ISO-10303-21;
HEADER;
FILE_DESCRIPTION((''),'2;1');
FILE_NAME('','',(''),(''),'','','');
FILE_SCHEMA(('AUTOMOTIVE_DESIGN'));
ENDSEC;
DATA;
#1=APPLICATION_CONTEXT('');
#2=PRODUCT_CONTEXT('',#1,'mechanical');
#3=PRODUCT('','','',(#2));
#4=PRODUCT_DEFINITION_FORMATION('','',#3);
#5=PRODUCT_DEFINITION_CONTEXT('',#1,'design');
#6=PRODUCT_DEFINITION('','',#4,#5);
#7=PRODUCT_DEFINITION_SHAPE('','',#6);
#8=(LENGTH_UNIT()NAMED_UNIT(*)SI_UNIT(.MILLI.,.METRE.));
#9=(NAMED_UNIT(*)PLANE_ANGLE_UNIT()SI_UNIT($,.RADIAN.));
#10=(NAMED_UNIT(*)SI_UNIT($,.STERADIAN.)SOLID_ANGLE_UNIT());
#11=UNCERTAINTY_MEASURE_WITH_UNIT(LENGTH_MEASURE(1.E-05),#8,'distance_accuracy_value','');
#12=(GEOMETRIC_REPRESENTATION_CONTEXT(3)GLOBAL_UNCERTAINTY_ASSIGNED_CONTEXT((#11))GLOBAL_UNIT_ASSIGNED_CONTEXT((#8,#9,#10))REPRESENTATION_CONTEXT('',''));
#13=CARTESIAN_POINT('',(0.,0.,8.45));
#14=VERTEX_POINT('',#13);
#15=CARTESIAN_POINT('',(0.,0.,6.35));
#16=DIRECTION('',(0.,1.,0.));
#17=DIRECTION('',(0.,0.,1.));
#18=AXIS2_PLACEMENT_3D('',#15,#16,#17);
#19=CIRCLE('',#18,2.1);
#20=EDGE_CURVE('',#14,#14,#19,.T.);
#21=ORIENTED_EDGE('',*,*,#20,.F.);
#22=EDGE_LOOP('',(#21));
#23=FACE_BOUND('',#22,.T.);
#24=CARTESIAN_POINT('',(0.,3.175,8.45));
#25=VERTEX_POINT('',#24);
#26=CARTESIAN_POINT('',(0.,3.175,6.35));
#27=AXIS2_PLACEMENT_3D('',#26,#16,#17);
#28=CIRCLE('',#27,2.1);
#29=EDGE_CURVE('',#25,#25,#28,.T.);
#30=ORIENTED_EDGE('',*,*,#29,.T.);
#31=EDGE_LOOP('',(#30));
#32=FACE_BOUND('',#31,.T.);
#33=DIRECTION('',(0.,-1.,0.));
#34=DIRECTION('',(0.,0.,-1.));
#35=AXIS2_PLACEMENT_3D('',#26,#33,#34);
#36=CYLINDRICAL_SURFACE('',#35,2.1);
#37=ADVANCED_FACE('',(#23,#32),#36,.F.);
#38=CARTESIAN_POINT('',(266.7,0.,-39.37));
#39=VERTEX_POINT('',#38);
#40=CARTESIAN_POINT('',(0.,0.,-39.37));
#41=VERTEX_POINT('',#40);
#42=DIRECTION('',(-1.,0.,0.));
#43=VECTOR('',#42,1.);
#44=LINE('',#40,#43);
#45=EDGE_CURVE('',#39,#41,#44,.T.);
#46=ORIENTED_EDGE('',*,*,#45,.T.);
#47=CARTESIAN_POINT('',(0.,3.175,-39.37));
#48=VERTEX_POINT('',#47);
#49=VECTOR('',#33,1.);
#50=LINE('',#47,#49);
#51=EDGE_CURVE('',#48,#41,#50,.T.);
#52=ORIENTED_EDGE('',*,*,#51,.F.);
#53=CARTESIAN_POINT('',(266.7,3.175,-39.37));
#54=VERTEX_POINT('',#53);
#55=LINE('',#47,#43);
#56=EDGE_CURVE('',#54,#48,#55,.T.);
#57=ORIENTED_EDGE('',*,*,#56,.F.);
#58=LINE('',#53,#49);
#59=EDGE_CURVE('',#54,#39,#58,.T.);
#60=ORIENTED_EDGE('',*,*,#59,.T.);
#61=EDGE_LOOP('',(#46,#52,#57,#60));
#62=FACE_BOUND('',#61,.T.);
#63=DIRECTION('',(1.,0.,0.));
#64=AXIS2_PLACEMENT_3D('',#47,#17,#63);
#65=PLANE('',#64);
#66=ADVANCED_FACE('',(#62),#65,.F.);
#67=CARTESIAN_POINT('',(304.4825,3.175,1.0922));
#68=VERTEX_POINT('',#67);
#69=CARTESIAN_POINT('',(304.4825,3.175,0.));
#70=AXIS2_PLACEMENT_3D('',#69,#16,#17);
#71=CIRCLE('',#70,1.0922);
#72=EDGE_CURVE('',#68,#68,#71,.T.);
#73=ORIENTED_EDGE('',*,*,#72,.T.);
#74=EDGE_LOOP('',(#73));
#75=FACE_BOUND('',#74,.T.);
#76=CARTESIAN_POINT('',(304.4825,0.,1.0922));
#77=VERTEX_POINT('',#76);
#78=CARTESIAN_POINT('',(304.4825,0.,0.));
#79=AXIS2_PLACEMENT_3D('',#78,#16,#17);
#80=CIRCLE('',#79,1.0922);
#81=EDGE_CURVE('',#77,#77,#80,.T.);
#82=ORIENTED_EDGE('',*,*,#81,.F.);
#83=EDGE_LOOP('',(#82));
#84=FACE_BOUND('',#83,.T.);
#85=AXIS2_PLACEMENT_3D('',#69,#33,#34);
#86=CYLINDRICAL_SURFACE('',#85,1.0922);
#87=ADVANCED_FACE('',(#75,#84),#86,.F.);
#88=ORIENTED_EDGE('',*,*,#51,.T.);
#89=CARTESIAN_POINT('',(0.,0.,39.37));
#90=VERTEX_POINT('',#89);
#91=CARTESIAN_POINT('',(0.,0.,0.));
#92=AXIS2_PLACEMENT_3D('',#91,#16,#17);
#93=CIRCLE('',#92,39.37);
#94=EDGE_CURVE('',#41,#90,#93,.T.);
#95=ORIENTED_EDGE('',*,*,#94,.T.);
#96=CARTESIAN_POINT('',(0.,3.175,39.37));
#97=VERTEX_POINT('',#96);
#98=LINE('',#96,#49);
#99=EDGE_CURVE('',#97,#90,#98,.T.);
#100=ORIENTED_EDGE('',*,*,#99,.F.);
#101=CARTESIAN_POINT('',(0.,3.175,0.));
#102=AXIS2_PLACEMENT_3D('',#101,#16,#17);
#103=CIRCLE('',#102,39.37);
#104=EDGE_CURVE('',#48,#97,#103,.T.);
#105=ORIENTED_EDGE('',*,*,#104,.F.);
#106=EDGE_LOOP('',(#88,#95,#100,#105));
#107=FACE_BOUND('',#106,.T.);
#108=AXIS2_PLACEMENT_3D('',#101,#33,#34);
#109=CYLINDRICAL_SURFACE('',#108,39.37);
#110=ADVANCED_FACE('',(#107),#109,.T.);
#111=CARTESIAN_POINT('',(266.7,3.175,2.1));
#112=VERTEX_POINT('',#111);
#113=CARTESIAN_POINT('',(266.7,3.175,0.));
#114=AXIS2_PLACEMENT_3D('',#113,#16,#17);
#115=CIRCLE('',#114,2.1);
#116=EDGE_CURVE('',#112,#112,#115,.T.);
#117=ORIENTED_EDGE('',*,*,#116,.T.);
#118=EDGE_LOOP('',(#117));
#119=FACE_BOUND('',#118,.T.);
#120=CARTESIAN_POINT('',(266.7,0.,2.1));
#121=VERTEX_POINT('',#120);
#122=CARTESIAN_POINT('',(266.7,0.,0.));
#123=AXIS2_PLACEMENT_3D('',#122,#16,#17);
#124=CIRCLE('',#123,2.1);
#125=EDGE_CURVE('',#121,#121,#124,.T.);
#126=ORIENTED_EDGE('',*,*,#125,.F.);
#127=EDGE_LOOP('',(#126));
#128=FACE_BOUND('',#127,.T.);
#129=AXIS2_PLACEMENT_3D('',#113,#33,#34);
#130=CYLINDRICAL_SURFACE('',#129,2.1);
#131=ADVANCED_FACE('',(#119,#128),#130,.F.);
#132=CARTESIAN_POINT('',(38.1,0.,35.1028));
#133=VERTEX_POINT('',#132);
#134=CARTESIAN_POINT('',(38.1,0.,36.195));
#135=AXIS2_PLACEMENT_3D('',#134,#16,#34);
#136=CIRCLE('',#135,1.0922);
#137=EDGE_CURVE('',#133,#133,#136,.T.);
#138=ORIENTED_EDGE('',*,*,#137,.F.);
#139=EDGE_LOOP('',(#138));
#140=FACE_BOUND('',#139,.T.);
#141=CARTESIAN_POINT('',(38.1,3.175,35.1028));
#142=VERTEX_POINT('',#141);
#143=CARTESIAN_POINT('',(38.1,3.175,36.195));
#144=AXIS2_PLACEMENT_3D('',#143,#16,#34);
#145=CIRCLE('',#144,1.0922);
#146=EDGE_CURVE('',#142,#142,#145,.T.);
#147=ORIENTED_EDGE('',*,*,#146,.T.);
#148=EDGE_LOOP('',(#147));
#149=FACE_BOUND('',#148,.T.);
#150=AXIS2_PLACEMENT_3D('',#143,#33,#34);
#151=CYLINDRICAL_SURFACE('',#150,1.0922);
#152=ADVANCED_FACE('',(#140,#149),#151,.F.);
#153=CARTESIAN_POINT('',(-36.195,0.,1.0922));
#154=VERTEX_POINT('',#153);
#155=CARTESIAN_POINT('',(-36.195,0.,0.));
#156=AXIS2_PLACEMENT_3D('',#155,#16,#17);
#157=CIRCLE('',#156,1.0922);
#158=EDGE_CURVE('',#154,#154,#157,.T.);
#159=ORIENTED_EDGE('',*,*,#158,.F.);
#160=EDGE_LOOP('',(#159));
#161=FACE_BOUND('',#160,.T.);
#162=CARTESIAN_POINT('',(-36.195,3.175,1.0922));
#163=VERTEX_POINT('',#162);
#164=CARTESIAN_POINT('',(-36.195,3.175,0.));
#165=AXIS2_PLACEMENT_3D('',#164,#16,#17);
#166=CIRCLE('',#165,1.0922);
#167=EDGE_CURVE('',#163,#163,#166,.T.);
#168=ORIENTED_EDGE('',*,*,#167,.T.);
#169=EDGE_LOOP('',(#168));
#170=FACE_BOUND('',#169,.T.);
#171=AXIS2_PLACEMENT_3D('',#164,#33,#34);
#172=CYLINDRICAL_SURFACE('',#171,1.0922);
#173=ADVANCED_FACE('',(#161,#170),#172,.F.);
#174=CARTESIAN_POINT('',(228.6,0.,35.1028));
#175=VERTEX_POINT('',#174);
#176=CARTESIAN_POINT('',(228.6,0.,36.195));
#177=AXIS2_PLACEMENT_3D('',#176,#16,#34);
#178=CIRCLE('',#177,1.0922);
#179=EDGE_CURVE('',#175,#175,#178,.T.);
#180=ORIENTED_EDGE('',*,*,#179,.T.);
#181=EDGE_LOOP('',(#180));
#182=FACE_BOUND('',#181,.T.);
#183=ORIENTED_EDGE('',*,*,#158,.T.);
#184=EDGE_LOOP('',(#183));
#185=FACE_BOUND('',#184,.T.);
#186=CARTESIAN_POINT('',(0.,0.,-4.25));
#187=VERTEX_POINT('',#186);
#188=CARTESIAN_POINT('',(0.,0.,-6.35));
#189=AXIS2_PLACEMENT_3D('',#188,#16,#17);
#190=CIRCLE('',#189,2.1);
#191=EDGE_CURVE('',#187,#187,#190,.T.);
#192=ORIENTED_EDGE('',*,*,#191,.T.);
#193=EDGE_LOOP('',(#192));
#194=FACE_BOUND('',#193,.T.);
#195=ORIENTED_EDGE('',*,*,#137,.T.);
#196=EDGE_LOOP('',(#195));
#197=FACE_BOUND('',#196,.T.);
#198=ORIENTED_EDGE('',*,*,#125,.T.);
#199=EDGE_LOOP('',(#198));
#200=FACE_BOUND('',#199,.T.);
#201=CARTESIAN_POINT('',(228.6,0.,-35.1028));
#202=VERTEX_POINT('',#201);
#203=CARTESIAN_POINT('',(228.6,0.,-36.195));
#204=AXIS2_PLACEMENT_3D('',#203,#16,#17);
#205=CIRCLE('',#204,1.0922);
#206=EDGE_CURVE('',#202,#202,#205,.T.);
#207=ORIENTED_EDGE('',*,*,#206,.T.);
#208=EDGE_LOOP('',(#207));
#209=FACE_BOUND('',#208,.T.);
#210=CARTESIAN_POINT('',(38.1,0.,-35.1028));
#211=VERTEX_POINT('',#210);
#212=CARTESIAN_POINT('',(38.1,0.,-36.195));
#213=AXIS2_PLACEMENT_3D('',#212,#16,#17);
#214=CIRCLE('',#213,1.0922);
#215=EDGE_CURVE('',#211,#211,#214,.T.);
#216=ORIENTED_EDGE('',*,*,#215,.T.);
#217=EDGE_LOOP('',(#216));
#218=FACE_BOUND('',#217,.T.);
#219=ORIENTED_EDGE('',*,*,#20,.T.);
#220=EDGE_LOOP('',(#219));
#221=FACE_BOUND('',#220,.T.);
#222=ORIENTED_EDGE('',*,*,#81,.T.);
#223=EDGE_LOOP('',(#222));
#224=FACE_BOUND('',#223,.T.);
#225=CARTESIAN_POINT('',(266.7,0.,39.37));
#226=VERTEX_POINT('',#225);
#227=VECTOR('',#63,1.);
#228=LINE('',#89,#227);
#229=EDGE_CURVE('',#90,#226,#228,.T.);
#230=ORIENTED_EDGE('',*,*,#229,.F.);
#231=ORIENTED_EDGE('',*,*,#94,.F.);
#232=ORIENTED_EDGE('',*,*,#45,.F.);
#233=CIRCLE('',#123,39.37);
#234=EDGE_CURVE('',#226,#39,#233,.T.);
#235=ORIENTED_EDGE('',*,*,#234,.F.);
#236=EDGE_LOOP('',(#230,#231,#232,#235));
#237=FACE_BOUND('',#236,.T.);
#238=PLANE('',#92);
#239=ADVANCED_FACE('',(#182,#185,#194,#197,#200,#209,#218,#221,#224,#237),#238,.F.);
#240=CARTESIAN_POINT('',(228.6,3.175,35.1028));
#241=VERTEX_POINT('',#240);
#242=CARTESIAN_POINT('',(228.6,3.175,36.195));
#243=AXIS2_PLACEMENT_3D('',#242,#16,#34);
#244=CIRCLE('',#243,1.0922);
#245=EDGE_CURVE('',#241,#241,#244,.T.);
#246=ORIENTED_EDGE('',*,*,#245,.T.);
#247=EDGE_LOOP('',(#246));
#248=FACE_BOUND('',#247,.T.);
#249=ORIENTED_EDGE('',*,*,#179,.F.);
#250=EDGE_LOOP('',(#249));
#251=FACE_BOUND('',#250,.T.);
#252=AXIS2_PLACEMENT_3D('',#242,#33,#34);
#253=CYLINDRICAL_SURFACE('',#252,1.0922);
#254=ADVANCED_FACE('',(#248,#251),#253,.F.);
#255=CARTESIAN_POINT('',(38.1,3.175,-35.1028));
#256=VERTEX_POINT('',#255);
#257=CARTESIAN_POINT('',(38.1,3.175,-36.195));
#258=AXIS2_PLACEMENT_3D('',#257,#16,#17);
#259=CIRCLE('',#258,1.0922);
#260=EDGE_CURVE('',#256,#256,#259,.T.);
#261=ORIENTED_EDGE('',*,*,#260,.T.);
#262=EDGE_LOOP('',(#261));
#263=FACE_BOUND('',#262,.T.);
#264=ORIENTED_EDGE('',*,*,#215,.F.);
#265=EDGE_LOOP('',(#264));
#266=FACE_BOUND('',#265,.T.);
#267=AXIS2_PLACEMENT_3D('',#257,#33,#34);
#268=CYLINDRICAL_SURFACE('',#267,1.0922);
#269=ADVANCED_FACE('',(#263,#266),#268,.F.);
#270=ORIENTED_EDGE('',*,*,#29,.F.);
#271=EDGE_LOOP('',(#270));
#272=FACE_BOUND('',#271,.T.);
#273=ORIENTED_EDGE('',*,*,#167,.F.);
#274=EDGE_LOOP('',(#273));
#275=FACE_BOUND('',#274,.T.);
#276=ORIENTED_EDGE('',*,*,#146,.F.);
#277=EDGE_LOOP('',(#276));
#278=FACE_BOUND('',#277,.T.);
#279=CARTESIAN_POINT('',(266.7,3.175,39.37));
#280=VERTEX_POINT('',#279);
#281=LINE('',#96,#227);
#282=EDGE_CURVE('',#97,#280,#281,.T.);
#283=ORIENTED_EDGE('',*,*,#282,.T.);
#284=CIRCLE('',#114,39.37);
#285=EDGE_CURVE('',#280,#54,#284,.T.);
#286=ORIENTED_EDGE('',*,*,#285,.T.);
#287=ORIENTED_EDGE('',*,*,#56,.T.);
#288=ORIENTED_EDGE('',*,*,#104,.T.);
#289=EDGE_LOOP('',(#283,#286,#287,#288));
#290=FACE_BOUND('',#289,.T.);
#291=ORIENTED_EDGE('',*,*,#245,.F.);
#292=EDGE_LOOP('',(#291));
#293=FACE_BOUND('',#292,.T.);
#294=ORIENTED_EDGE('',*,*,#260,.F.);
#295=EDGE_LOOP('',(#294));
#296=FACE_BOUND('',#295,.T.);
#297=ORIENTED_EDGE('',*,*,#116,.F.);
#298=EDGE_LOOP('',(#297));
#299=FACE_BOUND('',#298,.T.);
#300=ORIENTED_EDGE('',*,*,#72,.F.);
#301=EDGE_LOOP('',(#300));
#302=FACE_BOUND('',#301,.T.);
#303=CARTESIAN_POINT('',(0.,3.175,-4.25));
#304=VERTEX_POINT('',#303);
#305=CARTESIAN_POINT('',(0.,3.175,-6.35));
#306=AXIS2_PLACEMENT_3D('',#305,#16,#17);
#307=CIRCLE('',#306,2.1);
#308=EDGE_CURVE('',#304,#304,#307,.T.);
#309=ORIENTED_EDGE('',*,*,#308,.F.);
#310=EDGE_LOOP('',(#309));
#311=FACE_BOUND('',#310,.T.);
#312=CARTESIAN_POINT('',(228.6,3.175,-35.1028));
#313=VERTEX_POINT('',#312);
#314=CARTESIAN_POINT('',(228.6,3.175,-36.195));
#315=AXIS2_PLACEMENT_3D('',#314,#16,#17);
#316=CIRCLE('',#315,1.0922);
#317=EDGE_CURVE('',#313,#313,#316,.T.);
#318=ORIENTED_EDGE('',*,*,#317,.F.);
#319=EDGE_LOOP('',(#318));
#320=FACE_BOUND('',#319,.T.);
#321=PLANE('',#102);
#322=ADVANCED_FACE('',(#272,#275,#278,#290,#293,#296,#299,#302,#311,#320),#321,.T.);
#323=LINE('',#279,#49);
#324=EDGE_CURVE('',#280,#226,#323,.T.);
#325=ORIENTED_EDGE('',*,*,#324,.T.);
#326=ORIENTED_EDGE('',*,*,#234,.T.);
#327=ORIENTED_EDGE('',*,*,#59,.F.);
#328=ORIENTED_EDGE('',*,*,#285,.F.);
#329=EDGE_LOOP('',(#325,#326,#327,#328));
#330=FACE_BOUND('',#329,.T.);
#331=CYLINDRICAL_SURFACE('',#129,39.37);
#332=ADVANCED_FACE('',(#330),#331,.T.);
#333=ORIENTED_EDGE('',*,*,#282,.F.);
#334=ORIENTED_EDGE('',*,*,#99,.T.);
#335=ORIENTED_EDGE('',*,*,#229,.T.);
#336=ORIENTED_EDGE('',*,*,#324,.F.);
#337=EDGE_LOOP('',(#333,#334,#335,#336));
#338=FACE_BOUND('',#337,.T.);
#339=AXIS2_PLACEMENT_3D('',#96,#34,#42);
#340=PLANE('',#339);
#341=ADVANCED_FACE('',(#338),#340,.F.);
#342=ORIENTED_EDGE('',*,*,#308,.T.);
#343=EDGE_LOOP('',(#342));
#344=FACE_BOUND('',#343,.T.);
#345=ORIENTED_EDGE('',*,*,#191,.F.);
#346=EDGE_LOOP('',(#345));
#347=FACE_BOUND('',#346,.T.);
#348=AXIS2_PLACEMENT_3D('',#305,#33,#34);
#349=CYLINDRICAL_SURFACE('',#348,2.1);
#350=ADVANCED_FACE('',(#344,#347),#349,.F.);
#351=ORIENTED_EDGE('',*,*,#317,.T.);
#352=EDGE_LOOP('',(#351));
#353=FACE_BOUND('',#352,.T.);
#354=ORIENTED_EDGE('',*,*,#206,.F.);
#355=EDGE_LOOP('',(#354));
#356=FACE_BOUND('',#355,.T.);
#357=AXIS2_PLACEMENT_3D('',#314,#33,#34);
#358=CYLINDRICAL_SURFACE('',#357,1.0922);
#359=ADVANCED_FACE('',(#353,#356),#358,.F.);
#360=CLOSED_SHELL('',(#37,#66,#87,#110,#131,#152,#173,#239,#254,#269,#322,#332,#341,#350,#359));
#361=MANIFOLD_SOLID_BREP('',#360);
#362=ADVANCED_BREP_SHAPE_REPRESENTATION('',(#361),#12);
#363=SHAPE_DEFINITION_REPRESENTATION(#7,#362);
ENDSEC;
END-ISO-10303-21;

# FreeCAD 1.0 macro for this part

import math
import FreeCAD as App
import Part
import Sketcher

V = App.Vector
Q = App.Units.Quantity

doc = App.newDocument("Part")
body = doc.addObject("PartDesign::Body", "Body")

# Sketch on XZ plane
sketch1 = body.newObject("Sketcher::SketchObject", "Sketch")
sketch1.AttachmentSupport = (doc.getObject("XZ_Plane"), [""])
sketch1.MapMode = "FlatFace"
sketch1.addGeometry([
    Part.LineSegment(V(266.7, -39.37, 0), V(0, -39.37, 0)),  # 0
    Part.ArcOfCircle(Part.Circle(V(0, 0, 0), V(0, 0, 1), 39.37), math.radians(90), math.radians(270)),  # 1
    Part.LineSegment(V(0, 39.37, 0), V(266.7, 39.37, 0)),  # 2
    Part.ArcOfCircle(Part.Circle(V(266.7, 0, 0), V(0, 0, 1), 39.37), math.radians(-90), math.radians(90)),  # 3
    Part.Circle(V(228.6, 36.195, 0), V(0, 0, 1), 1.0922),  # 4
    Part.Circle(V(38.1, 36.195, 0), V(0, 0, 1), 1.0922),  # 5
    Part.Circle(V(0, 6.35, 0), V(0, 0, 1), 2.1),  # 6
    Part.Circle(V(304.4825, 0, 0), V(0, 0, 1), 1.0922),  # 7
    Part.Circle(V(266.7, 0, 0), V(0, 0, 1), 2.1),  # 8
    Part.Circle(V(228.6, -36.195, 0), V(0, 0, 1), 1.0922),  # 9
    Part.Circle(V(-36.195, 0, 0), V(0, 0, 1), 1.0922),  # 10
    Part.Circle(V(0, -6.35, 0), V(0, 0, 1), 2.1),  # 11
    Part.Circle(V(38.1, -36.195, 0), V(0, 0, 1), 1.0922),  # 12
], False)
sketch1.addConstraint([
    Sketcher.Constraint("Tangent", 0, 2, 1, 2),
    Sketcher.Constraint("Tangent", 1, 1, 2, 1),
    Sketcher.Constraint("Tangent", 2, 2, 3, 2),
    Sketcher.Constraint("Tangent", 3, 1, 0, 1),
    Sketcher.Constraint("Horizontal", 0),
    Sketcher.Constraint("Horizontal", 2),
    Sketcher.Constraint("Coincident", 1, 3, -1, 1),
    Sketcher.Constraint("Coincident", 8, 3, 3, 3),
    Sketcher.Constraint("Equal", 4, 5),
    Sketcher.Constraint("Equal", 5, 7),
    Sketcher.Constraint("Equal", 6, 8),
    Sketcher.Constraint("Equal", 7, 9),
    Sketcher.Constraint("Equal", 9, 10),
    Sketcher.Constraint("Equal", 8, 11),
    Sketcher.Constraint("Equal", 10, 12),
    Sketcher.Constraint("Symmetric", 6, 3, 11, 3, -1, 1),
    Sketcher.Constraint("Symmetric", 4, 3, 9, 3, -1),
    Sketcher.Constraint("Symmetric", 5, 3, 12, 3, -1),
    Sketcher.Constraint("PointOnObject", 6, 3, -2),
    Sketcher.Constraint("PointOnObject", 7, 3, -1),
    Sketcher.Constraint("PointOnObject", 10, 3, -1),
    Sketcher.Constraint("Horizontal", 4, 3, 5, 3),
    Sketcher.Constraint("Radius", 1, Q("1.55 in")),
    Sketcher.Constraint("Diameter", 4, Q("0.086 in")),
    Sketcher.Constraint("DistanceX", 0, 2, 0, 1, Q("10.5 in")),
    Sketcher.Constraint("DistanceX", -1, 1, 4, 3, Q("9 in")),
    Sketcher.Constraint("DistanceX", 5, 3, 3, 3, Q("9 in")),
    Sketcher.Constraint("DistanceY", 11, 3, 6, 3, Q("0.5 in")),
    Sketcher.Constraint("Diameter", 6, Q("4.2 mm")),
    Sketcher.Constraint("DistanceY", 9, 3, 4, 3, Q("2.85 in")),
    Sketcher.Constraint("DistanceX", 10, 3, -1, 1, Q("1.425 in")),
    Sketcher.Constraint("DistanceX", -1, 1, 7, 3, Q("11.9875 in")),
])
pad1 = body.newObject("PartDesign::Pad", "Pad")
pad1.Profile = sketch1
pad1.Length = Q("0.125 in")
pad1.Reversed = True

doc.recompute()
